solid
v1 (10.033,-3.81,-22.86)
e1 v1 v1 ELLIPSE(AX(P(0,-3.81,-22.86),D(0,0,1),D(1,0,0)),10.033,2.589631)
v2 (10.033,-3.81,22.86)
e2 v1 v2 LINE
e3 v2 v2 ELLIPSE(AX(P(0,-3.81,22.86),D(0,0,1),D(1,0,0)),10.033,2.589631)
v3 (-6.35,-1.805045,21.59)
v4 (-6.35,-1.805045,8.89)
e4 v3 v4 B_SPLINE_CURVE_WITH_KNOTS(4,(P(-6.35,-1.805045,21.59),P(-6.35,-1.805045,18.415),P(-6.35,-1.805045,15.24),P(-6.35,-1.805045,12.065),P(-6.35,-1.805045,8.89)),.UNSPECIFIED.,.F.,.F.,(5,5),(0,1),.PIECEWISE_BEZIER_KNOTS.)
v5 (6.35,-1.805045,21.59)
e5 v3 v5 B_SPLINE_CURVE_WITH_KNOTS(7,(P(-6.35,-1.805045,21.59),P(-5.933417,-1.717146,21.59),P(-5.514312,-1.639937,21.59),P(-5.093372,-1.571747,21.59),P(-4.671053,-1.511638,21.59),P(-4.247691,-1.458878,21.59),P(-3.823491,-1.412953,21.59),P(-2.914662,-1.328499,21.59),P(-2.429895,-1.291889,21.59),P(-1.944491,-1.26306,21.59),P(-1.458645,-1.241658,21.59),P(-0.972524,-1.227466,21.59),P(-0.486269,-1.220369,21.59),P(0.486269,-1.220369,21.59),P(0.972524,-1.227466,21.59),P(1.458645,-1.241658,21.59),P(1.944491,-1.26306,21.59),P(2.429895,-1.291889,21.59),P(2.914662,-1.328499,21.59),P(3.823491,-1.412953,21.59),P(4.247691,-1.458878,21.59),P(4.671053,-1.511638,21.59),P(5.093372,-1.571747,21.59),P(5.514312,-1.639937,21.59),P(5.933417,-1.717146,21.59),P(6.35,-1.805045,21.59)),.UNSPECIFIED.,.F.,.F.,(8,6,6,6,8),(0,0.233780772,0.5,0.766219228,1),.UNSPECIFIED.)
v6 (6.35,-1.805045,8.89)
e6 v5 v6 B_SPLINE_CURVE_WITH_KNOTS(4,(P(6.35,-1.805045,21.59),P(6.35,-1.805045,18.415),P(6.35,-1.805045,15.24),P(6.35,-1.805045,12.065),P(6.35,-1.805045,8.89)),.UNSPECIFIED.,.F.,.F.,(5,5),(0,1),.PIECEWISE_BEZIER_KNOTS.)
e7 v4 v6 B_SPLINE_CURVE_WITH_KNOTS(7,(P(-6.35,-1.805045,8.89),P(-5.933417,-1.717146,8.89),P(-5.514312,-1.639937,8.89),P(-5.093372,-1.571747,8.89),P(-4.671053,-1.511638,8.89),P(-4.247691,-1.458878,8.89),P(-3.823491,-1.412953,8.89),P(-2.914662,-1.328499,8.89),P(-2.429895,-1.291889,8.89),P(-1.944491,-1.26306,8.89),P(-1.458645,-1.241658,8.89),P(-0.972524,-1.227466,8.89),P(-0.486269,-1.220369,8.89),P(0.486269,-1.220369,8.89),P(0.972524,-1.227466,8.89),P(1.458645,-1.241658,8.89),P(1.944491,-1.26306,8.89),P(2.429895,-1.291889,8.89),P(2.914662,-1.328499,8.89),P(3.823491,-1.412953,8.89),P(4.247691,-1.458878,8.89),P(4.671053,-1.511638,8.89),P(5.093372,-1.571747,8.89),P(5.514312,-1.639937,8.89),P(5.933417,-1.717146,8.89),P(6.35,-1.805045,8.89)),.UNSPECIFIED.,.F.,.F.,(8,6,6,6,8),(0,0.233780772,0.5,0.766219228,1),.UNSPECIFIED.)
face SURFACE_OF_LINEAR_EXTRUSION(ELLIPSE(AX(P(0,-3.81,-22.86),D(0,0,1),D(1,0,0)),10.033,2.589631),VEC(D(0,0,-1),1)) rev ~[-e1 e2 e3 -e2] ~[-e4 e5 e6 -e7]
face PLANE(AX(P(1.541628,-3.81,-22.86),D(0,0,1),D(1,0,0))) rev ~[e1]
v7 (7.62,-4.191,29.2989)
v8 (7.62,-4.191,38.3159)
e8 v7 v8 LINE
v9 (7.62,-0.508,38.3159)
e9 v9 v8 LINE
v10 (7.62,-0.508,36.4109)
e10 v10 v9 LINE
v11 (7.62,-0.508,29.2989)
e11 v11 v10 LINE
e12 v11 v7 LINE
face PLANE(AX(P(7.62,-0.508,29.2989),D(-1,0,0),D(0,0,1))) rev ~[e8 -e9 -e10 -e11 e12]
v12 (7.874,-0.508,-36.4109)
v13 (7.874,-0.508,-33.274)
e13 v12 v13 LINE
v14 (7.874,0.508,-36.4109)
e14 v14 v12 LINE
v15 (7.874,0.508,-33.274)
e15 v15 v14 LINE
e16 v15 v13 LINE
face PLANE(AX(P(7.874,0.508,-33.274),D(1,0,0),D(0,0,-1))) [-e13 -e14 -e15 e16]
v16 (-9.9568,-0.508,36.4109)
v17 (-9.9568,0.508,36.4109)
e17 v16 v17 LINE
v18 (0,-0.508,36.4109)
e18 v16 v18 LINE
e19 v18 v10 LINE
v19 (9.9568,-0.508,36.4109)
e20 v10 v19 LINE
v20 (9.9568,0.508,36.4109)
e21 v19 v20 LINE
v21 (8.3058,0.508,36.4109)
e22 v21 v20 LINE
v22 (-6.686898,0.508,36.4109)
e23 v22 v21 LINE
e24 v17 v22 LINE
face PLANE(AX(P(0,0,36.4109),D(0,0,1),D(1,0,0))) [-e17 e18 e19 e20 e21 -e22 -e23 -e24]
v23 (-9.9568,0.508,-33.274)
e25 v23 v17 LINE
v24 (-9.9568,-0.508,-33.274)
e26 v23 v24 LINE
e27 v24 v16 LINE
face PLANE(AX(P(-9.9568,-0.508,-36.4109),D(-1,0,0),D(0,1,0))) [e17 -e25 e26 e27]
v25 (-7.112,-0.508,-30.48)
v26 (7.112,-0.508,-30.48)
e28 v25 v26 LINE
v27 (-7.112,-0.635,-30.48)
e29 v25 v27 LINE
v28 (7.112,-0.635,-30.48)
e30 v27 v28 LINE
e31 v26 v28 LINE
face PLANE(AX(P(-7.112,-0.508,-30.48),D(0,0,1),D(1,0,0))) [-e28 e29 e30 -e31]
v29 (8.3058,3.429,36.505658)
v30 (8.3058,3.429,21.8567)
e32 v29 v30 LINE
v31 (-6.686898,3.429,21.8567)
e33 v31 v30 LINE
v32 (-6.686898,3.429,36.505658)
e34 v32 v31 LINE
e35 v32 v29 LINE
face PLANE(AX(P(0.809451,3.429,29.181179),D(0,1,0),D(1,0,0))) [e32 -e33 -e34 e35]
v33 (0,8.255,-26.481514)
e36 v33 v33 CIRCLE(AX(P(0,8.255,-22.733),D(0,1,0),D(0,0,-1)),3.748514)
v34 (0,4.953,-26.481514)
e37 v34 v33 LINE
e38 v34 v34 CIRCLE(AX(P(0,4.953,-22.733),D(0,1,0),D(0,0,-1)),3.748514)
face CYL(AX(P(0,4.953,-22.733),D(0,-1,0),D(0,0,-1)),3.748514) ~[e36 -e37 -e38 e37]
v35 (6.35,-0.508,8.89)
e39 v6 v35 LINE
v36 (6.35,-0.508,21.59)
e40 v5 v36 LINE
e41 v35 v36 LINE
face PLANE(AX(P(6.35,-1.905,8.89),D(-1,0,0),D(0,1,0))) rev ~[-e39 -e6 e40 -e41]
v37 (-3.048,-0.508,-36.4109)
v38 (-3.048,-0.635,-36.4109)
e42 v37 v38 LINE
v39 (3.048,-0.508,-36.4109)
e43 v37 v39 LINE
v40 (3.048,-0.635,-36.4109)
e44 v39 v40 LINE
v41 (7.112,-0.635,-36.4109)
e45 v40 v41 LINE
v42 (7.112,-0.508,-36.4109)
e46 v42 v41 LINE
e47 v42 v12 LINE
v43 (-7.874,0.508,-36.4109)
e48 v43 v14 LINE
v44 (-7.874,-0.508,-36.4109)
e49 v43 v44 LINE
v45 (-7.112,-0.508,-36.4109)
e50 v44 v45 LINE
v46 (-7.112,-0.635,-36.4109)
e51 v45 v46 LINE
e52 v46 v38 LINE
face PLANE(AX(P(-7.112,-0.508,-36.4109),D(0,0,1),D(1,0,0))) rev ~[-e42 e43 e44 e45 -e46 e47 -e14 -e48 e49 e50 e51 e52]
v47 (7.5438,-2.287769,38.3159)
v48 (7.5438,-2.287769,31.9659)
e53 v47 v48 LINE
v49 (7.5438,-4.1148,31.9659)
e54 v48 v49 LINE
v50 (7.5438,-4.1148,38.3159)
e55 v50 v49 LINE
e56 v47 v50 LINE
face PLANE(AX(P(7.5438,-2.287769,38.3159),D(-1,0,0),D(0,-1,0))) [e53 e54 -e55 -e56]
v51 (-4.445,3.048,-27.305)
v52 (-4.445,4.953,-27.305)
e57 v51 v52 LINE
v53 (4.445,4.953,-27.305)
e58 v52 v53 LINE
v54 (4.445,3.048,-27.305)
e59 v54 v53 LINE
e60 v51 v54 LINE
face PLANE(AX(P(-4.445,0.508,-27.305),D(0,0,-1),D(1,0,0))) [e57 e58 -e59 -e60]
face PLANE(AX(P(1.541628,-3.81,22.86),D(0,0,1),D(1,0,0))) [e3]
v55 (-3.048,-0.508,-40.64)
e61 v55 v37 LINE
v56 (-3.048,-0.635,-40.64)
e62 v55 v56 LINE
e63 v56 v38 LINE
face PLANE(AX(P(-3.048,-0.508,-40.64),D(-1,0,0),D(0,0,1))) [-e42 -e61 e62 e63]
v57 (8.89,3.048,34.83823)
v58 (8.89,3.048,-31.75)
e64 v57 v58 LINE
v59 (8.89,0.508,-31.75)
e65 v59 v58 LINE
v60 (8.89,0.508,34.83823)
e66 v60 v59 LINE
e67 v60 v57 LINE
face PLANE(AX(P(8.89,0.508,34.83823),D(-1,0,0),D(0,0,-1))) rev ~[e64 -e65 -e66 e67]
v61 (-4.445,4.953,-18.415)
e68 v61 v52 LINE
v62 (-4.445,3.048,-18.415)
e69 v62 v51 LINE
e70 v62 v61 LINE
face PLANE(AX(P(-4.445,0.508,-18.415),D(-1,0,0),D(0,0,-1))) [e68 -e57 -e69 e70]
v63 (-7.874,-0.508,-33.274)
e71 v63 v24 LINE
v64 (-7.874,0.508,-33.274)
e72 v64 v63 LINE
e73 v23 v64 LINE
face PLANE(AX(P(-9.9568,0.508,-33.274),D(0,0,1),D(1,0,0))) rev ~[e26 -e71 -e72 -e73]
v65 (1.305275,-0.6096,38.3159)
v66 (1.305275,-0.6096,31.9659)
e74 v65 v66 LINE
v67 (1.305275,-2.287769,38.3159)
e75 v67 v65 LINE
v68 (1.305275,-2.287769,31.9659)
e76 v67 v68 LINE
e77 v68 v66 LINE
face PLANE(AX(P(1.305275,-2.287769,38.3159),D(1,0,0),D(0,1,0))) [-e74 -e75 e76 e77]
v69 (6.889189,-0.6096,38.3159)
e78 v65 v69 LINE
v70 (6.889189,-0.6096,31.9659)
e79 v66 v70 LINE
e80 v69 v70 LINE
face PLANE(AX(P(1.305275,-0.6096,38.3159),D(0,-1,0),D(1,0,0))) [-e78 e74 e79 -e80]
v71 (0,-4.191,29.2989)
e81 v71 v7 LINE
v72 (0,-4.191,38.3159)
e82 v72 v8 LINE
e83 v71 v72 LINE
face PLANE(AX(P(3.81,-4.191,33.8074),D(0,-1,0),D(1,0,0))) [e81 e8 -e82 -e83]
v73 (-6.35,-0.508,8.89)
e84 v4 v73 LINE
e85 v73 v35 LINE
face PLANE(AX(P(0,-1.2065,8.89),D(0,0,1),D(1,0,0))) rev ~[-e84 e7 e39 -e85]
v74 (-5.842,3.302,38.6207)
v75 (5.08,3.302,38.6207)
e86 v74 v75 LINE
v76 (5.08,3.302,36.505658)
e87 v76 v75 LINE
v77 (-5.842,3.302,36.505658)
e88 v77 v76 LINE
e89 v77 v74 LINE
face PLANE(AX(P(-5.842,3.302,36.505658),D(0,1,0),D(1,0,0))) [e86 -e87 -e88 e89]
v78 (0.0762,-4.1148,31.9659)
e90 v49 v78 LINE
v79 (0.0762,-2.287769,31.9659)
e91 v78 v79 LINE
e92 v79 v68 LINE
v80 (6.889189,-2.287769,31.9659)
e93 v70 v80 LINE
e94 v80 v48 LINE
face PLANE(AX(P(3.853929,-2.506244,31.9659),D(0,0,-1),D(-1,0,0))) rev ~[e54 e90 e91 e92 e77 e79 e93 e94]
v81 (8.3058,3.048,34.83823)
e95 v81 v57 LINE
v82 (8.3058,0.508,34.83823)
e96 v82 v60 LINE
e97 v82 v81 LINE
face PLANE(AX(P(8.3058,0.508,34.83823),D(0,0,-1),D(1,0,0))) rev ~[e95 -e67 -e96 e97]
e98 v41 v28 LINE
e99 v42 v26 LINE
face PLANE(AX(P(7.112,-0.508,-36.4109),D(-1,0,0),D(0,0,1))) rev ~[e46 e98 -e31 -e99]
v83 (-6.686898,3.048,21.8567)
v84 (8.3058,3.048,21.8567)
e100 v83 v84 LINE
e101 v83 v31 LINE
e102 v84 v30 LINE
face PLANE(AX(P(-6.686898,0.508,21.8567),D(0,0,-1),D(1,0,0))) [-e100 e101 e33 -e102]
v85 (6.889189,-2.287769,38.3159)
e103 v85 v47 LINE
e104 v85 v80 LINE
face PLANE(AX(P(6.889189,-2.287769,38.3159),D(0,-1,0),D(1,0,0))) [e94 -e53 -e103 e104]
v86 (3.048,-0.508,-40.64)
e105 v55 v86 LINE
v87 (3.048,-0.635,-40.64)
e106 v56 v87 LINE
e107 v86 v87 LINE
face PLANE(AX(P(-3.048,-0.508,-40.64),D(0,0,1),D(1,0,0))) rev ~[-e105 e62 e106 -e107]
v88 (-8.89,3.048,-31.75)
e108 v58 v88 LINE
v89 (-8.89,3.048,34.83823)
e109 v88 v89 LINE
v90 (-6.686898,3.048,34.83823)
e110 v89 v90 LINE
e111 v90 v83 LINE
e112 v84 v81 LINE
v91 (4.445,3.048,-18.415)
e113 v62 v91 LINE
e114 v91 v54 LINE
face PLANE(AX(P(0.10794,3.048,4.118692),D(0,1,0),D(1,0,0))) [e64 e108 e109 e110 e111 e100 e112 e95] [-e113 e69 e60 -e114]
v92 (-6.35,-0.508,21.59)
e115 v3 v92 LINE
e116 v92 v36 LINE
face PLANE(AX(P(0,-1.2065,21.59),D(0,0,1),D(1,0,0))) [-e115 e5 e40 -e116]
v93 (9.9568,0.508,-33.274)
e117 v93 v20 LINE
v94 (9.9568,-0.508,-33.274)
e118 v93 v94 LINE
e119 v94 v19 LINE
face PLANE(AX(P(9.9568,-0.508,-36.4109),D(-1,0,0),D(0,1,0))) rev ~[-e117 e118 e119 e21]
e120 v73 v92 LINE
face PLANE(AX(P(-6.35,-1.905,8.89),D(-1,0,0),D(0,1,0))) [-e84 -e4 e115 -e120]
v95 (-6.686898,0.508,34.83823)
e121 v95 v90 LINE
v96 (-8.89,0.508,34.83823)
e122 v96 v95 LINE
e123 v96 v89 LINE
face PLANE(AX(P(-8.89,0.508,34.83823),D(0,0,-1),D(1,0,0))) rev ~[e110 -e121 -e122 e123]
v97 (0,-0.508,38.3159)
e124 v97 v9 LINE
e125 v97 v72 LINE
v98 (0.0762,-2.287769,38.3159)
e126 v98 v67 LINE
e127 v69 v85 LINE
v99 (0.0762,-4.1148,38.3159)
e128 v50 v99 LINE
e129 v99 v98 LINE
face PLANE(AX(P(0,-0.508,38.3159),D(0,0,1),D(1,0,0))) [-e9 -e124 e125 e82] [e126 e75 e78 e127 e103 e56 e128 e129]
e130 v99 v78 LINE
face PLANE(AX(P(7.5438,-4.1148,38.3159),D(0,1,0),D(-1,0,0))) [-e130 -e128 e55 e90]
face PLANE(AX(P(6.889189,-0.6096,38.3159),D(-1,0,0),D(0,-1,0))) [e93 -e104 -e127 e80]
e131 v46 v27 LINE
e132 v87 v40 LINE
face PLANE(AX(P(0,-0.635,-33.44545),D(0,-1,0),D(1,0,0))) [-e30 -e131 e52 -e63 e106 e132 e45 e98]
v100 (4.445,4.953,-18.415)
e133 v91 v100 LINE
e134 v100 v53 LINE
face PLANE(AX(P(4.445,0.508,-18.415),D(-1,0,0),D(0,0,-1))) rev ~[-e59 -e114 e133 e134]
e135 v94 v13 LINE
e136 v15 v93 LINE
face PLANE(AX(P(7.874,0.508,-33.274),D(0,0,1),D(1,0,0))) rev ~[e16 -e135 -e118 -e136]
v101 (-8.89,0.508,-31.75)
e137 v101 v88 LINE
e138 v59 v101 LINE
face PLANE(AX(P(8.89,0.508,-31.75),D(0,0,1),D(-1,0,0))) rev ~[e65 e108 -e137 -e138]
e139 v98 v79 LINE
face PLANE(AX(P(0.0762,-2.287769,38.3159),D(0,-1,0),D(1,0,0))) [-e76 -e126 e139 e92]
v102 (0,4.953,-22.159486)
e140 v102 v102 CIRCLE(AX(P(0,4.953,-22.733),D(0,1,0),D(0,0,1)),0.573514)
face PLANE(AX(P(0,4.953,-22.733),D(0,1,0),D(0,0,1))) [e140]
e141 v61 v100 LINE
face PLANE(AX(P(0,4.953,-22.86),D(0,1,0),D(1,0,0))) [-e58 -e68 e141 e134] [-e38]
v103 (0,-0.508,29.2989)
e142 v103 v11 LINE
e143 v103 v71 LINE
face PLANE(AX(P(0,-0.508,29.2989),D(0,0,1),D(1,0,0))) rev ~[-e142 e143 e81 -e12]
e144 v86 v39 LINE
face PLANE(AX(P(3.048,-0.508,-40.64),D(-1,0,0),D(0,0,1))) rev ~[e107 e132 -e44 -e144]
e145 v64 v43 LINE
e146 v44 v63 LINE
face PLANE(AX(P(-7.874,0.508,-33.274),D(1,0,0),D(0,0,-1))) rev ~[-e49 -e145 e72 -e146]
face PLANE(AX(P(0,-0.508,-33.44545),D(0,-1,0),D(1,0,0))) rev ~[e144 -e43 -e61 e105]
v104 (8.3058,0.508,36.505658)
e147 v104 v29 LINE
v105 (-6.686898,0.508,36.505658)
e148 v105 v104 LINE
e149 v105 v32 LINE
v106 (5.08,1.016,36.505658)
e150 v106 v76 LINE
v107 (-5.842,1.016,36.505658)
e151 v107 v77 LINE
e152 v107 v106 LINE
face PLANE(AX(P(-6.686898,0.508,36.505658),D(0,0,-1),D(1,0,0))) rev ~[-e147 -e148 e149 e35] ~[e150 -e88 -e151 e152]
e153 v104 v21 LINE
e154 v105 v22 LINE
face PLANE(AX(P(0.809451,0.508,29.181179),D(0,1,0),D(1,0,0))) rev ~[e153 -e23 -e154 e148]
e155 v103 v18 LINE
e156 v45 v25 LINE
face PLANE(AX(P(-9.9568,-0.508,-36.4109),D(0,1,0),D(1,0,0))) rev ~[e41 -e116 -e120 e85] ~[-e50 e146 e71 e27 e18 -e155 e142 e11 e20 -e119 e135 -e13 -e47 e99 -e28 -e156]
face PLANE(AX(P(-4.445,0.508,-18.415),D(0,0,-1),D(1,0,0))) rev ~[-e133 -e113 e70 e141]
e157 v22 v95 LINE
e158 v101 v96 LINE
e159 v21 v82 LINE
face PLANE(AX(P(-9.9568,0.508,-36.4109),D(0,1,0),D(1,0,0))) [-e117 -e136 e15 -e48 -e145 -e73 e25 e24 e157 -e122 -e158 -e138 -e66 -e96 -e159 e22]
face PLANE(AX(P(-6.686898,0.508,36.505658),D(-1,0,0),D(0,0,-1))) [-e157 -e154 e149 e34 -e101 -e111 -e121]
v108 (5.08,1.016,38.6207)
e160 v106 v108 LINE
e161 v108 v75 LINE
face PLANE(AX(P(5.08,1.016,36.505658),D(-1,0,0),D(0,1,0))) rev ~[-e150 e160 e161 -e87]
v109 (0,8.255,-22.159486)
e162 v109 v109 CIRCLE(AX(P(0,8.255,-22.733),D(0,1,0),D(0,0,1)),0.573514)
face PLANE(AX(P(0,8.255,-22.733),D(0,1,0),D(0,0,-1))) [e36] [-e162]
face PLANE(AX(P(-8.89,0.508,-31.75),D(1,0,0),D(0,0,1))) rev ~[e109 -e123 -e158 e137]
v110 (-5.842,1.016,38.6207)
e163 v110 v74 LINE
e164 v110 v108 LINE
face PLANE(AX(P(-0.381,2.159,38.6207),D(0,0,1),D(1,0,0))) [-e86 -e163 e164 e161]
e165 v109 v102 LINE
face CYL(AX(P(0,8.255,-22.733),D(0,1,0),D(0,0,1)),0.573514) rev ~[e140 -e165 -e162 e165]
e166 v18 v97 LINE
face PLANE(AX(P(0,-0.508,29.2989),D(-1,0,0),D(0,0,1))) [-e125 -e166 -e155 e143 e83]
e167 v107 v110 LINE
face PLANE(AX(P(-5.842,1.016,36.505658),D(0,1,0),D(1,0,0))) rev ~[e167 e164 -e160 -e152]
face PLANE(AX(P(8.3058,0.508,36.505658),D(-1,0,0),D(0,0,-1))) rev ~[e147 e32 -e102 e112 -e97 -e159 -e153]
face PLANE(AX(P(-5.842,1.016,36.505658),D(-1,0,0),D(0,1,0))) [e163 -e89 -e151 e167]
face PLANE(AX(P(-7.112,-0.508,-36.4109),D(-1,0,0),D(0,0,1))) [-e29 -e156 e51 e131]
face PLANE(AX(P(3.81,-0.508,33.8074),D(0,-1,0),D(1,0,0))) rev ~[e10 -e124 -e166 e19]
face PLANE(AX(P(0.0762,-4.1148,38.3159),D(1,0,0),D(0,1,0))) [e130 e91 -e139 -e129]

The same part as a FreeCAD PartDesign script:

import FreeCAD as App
import Part
import Sketcher

V = App.Vector
Q = App.Units.Quantity

doc = App.newDocument("Part")
params = doc.addObject("Spreadsheet::Sheet", "Params")
for row, (alias, value) in enumerate([
    ("sketch1_width", "0.5 in"),
    ("sketch1_height", "0.055 in"),
    ("pad1_length", "0.25 in"),
    ("pad1_length2", "0.25 in"),
    ("pad2_length", "0.9 in"),
    ("pad2_length2", "0.9 in"),
    ("sketch3_height", "0.04 in"),
    ("sketch3_width", "0.784 in"),
    ("pad3_length", "1.4335 in"),
    ("pad3_length2", "1.4335 in"),
    ("pad4_length", "0.115 in"),
    ("sketch5_width", "0.43 in"),
    ("sketch5_height", "0.09 in"),
    ("pad5_length", "2.115042 mm"),
    ("sketch6_width", "0.082 in"),
    ("sketch7_width", "0.082 in"),
    ("sketch8_width", "0.3 in"),
    ("sketch8_height", "0.355 in"),
    ("pad6_length", "0.145 in"),
    ("sketch9_width", "0.35 in"),
    ("pad7_length", "0.175 in"),
    ("pad8_length", "0.13 in"),
    ("pocket3_length", "0.13 in"),
    ("sketch12_width", "0.16 in"),
    ("sketch12_width2", "0.24 in"),
    ("pad9_length", "0.005 in"),
    ("sketch13_width", "0.294 in"),
    ("pocket4_length", "0.25 in"),
    ("sketch14_width", "0.7 in"),
    ("sketch14_width2", "0.35 in"),
    ("sketch14_width3", "0.023 in"),
    ("pad10_length", "0.1 in"),
], start=1):
    params.set(f"A{row}", alias)
    params.set(f"B{row}", "=" + value)
    params.setAlias(f"B{row}", alias)

body = doc.addObject("PartDesign::Body", "Body")

# Sketch on XY plane
sketch1 = body.newObject("Sketcher::SketchObject", "Sketch")
sketch1.AttachmentSupport = (doc.getObject("XY_Plane"), [""])
sketch1.MapMode = "FlatFace"
sketch1.AttachmentOffset = App.Placement(V(0, 0, 0.6 * 25.4), App.Rotation())
sketch1.addGeometry([
    Part.LineSegment(V(-6.35, -0.508, 0), V(-6.35, -1.905, 0)),
    Part.LineSegment(V(-6.35, -1.905, 0), V(6.35, -1.905, 0)),
    Part.LineSegment(V(6.35, -1.905, 0), V(6.35, -0.508, 0)),
    Part.LineSegment(V(6.35, -0.508, 0), V(-6.35, -0.508, 0)),
], False)
sketch1.addConstraint([
    Sketcher.Constraint("Coincident", 0, 2, 1, 1),
    Sketcher.Constraint("Coincident", 1, 2, 2, 1),
    Sketcher.Constraint("Coincident", 2, 2, 3, 1),
    Sketcher.Constraint("Coincident", 3, 2, 0, 1),
    Sketcher.Constraint("Vertical", 0),
    Sketcher.Constraint("Horizontal", 1),
    Sketcher.Constraint("Vertical", 2),
    Sketcher.Constraint("Horizontal", 3),
    Sketcher.Constraint("DistanceX", 1, 1, 1, 2, Q("0.5 in")),
    Sketcher.Constraint("DistanceY", 0, 2, 0, 1, Q("0.055 in")),
    Sketcher.Constraint("DistanceX", 0, 2, -1, 1, Q("0.25 in")),
    Sketcher.Constraint("DistanceY", 2, 2, -1, 1, Q("0.02 in")),
])
sketch1.setExpression("Constraints[8]", "Params.sketch1_width")
sketch1.setExpression("Constraints[9]", "Params.sketch1_height")
pad1 = body.newObject("PartDesign::Pad", "Pad")
pad1.Profile = sketch1
pad1.Type = "TwoLengths"
pad1.setExpression("Length", "Params.pad1_length")
pad1.setExpression("Length2", "Params.pad1_length2")

# Sketch on XY plane
sketch2 = body.newObject("Sketcher::SketchObject", "Sketch001")
sketch2.AttachmentSupport = (doc.getObject("XY_Plane"), [""])
sketch2.MapMode = "FlatFace"
sketch2.addGeometry(Part.Ellipse(V(10.033, -3.81, 0), V(0, -1.220369, 0), V(0, -3.81, 0)), False)
sketch2.addConstraint(Sketcher.Constraint("Block", 0))
pad2 = body.newObject("PartDesign::Pad", "Pad001")
pad2.Profile = sketch2
pad2.Type = "TwoLengths"
pad2.setExpression("Length", "Params.pad2_length")
pad2.setExpression("Length2", "Params.pad2_length2")

# Sketch on XY plane
sketch3 = body.newObject("Sketcher::SketchObject", "Sketch002")
sketch3.AttachmentSupport = (doc.getObject("XY_Plane"), [""])
sketch3.MapMode = "FlatFace"
sketch3.addGeometry([
    Part.LineSegment(V(-9.9568, 0.508, 0), V(-9.9568, -0.508, 0)),
    Part.LineSegment(V(-9.9568, -0.508, 0), V(9.9568, -0.508, 0)),
    Part.LineSegment(V(9.9568, -0.508, 0), V(9.9568, 0.508, 0)),
    Part.LineSegment(V(9.9568, 0.508, 0), V(-9.9568, 0.508, 0)),
], False)
sketch3.addConstraint([
    Sketcher.Constraint("Coincident", 0, 2, 1, 1),
    Sketcher.Constraint("Coincident", 1, 2, 2, 1),
    Sketcher.Constraint("Coincident", 2, 2, 3, 1),
    Sketcher.Constraint("Coincident", 3, 2, 0, 1),
    Sketcher.Constraint("Vertical", 0),
    Sketcher.Constraint("Horizontal", 1),
    Sketcher.Constraint("Vertical", 2),
    Sketcher.Constraint("Horizontal", 3),
    Sketcher.Constraint("Symmetric", 0, 2, 2, 2, -1, 1),
    Sketcher.Constraint("DistanceY", 0, 2, 0, 1, Q("0.04 in")),
    Sketcher.Constraint("DistanceX", 1, 1, 1, 2, Q("0.784 in")),
])
sketch3.setExpression("Constraints[9]", "Params.sketch3_height")
sketch3.setExpression("Constraints[10]", "Params.sketch3_width")
pad3 = body.newObject("PartDesign::Pad", "Pad002")
pad3.Profile = sketch3
pad3.Type = "TwoLengths"
pad3.setExpression("Length", "Params.pad3_length")
pad3.setExpression("Length2", "Params.pad3_length2")

# Sketch on XZ plane
sketch4 = body.newObject("Sketcher::SketchObject", "Sketch003")
sketch4.AttachmentSupport = (doc.getObject("XZ_Plane"), [""])
sketch4.MapMode = "FlatFace"
sketch4.AttachmentOffset = App.Placement(V(0, 0, -0.02 * 25.4), App.Rotation())
sketch4.addGeometry([
    Part.LineSegment(V(-6.686898, 21.8567, 0), V(-6.686898, 36.505658, 0)),
    Part.LineSegment(V(-6.686898, 36.505658, 0), V(8.3058, 36.505658, 0)),
    Part.LineSegment(V(8.3058, 36.505658, 0), V(8.3058, 21.8567, 0)),
    Part.LineSegment(V(8.3058, 21.8567, 0), V(-6.686898, 21.8567, 0)),
], False)
sketch4.addConstraint([
    Sketcher.Constraint("Coincident", 0, 2, 1, 1),
    Sketcher.Constraint("Coincident", 1, 2, 2, 1),
    Sketcher.Constraint("Coincident", 2, 2, 3, 1),
    Sketcher.Constraint("Coincident", 3, 2, 0, 1),
    Sketcher.Constraint("Vertical", 0),
    Sketcher.Constraint("Horizontal", 1),
    Sketcher.Constraint("Vertical", 2),
    Sketcher.Constraint("Horizontal", 3),
    Sketcher.Constraint("DistanceX", -1, 1, 1, 2, Q("0.327 in")),
    Sketcher.Constraint("DistanceY", -1, 1, 2, 2, Q("0.8605 in")),
    Sketcher.Constraint("DistanceX", 1, 1, 1, 2, Q("14.992698 mm")),
    Sketcher.Constraint("DistanceY", 0, 1, 0, 2, Q("14.648958 mm")),
])
pad4 = body.newObject("PartDesign::Pad", "Pad003")
pad4.Profile = sketch4
pad4.setExpression("Length", "Params.pad4_length")
pad4.Reversed = True

# Sketch on XY plane
sketch5 = body.newObject("Sketcher::SketchObject", "Sketch004")
sketch5.AttachmentSupport = (doc.getObject("XY_Plane"), [""])
sketch5.MapMode = "FlatFace"
sketch5.AttachmentOffset = App.Placement(V(0, 0, 36.505658), App.Rotation())
sketch5.addGeometry([
    Part.LineSegment(V(-5.842, 3.302, 0), V(-5.842, 1.016, 0)),
    Part.LineSegment(V(-5.842, 1.016, 0), V(5.08, 1.016, 0)),
    Part.LineSegment(V(5.08, 1.016, 0), V(5.08, 3.302, 0)),
    Part.LineSegment(V(5.08, 3.302, 0), V(-5.842, 3.302, 0)),
], False)
sketch5.addConstraint([
    Sketcher.Constraint("Coincident", 0, 2, 1, 1),
    Sketcher.Constraint("Coincident", 1, 2, 2, 1),
    Sketcher.Constraint("Coincident", 2, 2, 3, 1),
    Sketcher.Constraint("Coincident", 3, 2, 0, 1),
    Sketcher.Constraint("Vertical", 0),
    Sketcher.Constraint("Horizontal", 1),
    Sketcher.Constraint("Vertical", 2),
    Sketcher.Constraint("Horizontal", 3),
    Sketcher.Constraint("DistanceX", 1, 1, 1, 2, Q("0.43 in")),
    Sketcher.Constraint("DistanceY", 0, 2, 0, 1, Q("0.09 in")),
    Sketcher.Constraint("DistanceX", -1, 1, 1, 2, Q("0.2 in")),
    Sketcher.Constraint("DistanceY", -1, 1, 0, 2, Q("0.04 in")),
])
sketch5.setExpression("Constraints[8]", "Params.sketch5_width")
sketch5.setExpression("Constraints[9]", "Params.sketch5_height")
pad5 = body.newObject("PartDesign::Pad", "Pad004")
pad5.Profile = sketch5
pad5.setExpression("Length", "Params.pad5_length")

# Sketch on XZ plane
sketch6 = body.newObject("Sketcher::SketchObject", "Sketch005")
sketch6.AttachmentSupport = (doc.getObject("XZ_Plane"), [""])
sketch6.MapMode = "FlatFace"
sketch6.AttachmentOffset = App.Placement(V(0, 0, -0.02 * 25.4), App.Rotation())
sketch6.addGeometry([
    Part.LineSegment(V(-9.9568, -36.4109, 0), V(-9.9568, -33.274, 0)),
    Part.LineSegment(V(-9.9568, -33.274, 0), V(-7.874, -33.274, 0)),
    Part.LineSegment(V(-7.874, -33.274, 0), V(-7.874, -36.4109, 0)),
    Part.LineSegment(V(-7.874, -36.4109, 0), V(-9.9568, -36.4109, 0)),
], False)
sketch6.addConstraint([
    Sketcher.Constraint("Coincident", 0, 2, 1, 1),
    Sketcher.Constraint("Coincident", 1, 2, 2, 1),
    Sketcher.Constraint("Coincident", 2, 2, 3, 1),
    Sketcher.Constraint("Coincident", 3, 2, 0, 1),
    Sketcher.Constraint("Vertical", 0),
    Sketcher.Constraint("Horizontal", 1),
    Sketcher.Constraint("Vertical", 2),
    Sketcher.Constraint("Horizontal", 3),
    Sketcher.Constraint("DistanceX", 1, 1, 1, 2, Q("0.082 in")),
    Sketcher.Constraint("DistanceY", 0, 2, -1, 1, Q("1.31 in")),
    Sketcher.Constraint("DistanceX", 1, 2, -1, 1, Q("0.31 in")),
    Sketcher.Constraint("DistanceY", 0, 1, 0, 2, Q("0.1235 in")),
])
sketch6.setExpression("Constraints[8]", "Params.sketch6_width")
pocket1 = body.newObject("PartDesign::Pocket", "Pocket")
pocket1.Profile = sketch6
pocket1.Type = "UpToFirst"
pocket1.Reversed = True

# Sketch on XZ plane
sketch7 = body.newObject("Sketcher::SketchObject", "Sketch006")
sketch7.AttachmentSupport = (doc.getObject("XZ_Plane"), [""])
sketch7.MapMode = "FlatFace"
sketch7.AttachmentOffset = App.Placement(V(0, 0, -0.02 * 25.4), App.Rotation())
sketch7.addGeometry([
    Part.LineSegment(V(7.874, -36.4109, 0), V(7.874, -33.274, 0)),
    Part.LineSegment(V(7.874, -33.274, 0), V(9.9568, -33.274, 0)),
    Part.LineSegment(V(9.9568, -33.274, 0), V(9.9568, -36.4109, 0)),
    Part.LineSegment(V(9.9568, -36.4109, 0), V(7.874, -36.4109, 0)),
], False)
sketch7.addConstraint([
    Sketcher.Constraint("Coincident", 0, 2, 1, 1),
    Sketcher.Constraint("Coincident", 1, 2, 2, 1),
    Sketcher.Constraint("Coincident", 2, 2, 3, 1),
    Sketcher.Constraint("Coincident", 3, 2, 0, 1),
    Sketcher.Constraint("Vertical", 0),
    Sketcher.Constraint("Horizontal", 1),
    Sketcher.Constraint("Vertical", 2),
    Sketcher.Constraint("Horizontal", 3),
    Sketcher.Constraint("DistanceX", 1, 1, 1, 2, Q("0.082 in")),
    Sketcher.Constraint("DistanceX", -1, 1, 0, 2, Q("0.31 in")),
    Sketcher.Constraint("DistanceY", 0, 2, -1, 1, Q("1.31 in")),
    Sketcher.Constraint("DistanceY", 0, 1, 0, 2, Q("0.1235 in")),
])
sketch7.setExpression("Constraints[8]", "Params.sketch7_width")
pocket2 = body.newObject("PartDesign::Pocket", "Pocket001")
pocket2.Profile = sketch7
pocket2.Type = "UpToFirst"
pocket2.Reversed = True

# Sketch on XZ plane
sketch8 = body.newObject("Sketcher::SketchObject", "Sketch007")
sketch8.AttachmentSupport = (doc.getObject("XZ_Plane"), [""])
sketch8.MapMode = "FlatFace"
sketch8.AttachmentOffset = App.Placement(V(0, 0, 0.02 * 25.4), App.Rotation())
sketch8.addGeometry([
    Part.LineSegment(V(0, 38.3159, 0), V(0, 29.2989, 0)),
    Part.LineSegment(V(0, 29.2989, 0), V(7.62, 29.2989, 0)),
    Part.LineSegment(V(7.62, 29.2989, 0), V(7.62, 38.3159, 0)),
    Part.LineSegment(V(7.62, 38.3159, 0), V(0, 38.3159, 0)),
], False)
sketch8.addConstraint([
    Sketcher.Constraint("Coincident", 0, 2, 1, 1),
    Sketcher.Constraint("Coincident", 1, 2, 2, 1),
    Sketcher.Constraint("Coincident", 2, 2, 3, 1),
    Sketcher.Constraint("Coincident", 3, 2, 0, 1),
    Sketcher.Constraint("Vertical", 0),
    Sketcher.Constraint("Horizontal", 1),
    Sketcher.Constraint("Vertical", 2),
    Sketcher.Constraint("Horizontal", 3),
    Sketcher.Constraint("PointOnObject", 0, 2, -2),
    Sketcher.Constraint("DistanceX", 1, 1, 1, 2, Q("0.3 in")),
    Sketcher.Constraint("DistanceY", 0, 2, 0, 1, Q("0.355 in")),
    Sketcher.Constraint("DistanceY", -1, 1, 0, 2, Q("1.1535 in")),
])
sketch8.setExpression("Constraints[9]", "Params.sketch8_width")
sketch8.setExpression("Constraints[10]", "Params.sketch8_height")
pad6 = body.newObject("PartDesign::Pad", "Pad005")
pad6.Profile = sketch8
pad6.setExpression("Length", "Params.pad6_length")

# Sketch on XZ plane
sketch9 = body.newObject("Sketcher::SketchObject", "Sketch008")
sketch9.AttachmentSupport = (doc.getObject("XZ_Plane"), [""])
sketch9.MapMode = "FlatFace"
sketch9.AttachmentOffset = App.Placement(V(0, 0, -0.02 * 25.4), App.Rotation())
sketch9.addGeometry([
    Part.LineSegment(V(-4.445, -27.305, 0), V(-4.445, -18.415, 0)),
    Part.LineSegment(V(-4.445, -18.415, 0), V(4.445, -18.415, 0)),
    Part.LineSegment(V(4.445, -18.415, 0), V(4.445, -27.305, 0)),
    Part.LineSegment(V(4.445, -27.305, 0), V(-4.445, -27.305, 0)),
], False)
sketch9.addConstraint([
    Sketcher.Constraint("Coincident", 0, 2, 1, 1),
    Sketcher.Constraint("Coincident", 1, 2, 2, 1),
    Sketcher.Constraint("Coincident", 2, 2, 3, 1),
    Sketcher.Constraint("Coincident", 3, 2, 0, 1),
    Sketcher.Constraint("Vertical", 0),
    Sketcher.Constraint("Horizontal", 1),
    Sketcher.Constraint("Vertical", 2),
    Sketcher.Constraint("Horizontal", 3),
    Sketcher.Constraint("Equal", 3, 0),
    Sketcher.Constraint("DistanceX", 1, 1, 1, 2, Q("0.35 in")),
    Sketcher.Constraint("DistanceX", 0, 2, -1, 1, Q("0.175 in")),
    Sketcher.Constraint("DistanceY", 0, 2, -1, 1, Q("0.725 in")),
])
sketch9.setExpression("Constraints[9]", "Params.sketch9_width")
pad7 = body.newObject("PartDesign::Pad", "Pad006")
pad7.Profile = sketch9
pad7.setExpression("Length", "Params.pad7_length")
pad7.Reversed = True

# Sketch on XZ plane
sketch10 = body.newObject("Sketcher::SketchObject", "Sketch009")
sketch10.AttachmentSupport = (doc.getObject("XZ_Plane"), [""])
sketch10.MapMode = "FlatFace"
sketch10.AttachmentOffset = App.Placement(V(0, 0, -0.195 * 25.4), App.Rotation())
sketch10.addGeometry(Part.Circle(V(0, -22.733, 0), V(0, 0, 1), 3.748514), False)
sketch10.addConstraint([
    Sketcher.Constraint("PointOnObject", 0, 3, -2),
    Sketcher.Constraint("DistanceY", 0, 3, -1, 1, Q("0.895 in")),
    Sketcher.Constraint("Diameter", 0, Q("7.497028 mm")),
])
pad8 = body.newObject("PartDesign::Pad", "Pad007")
pad8.Profile = sketch10
pad8.setExpression("Length", "Params.pad8_length")
pad8.Reversed = True

# Sketch on XZ plane
sketch11 = body.newObject("Sketcher::SketchObject", "Sketch010")
sketch11.AttachmentSupport = (doc.getObject("XZ_Plane"), [""])
sketch11.MapMode = "FlatFace"
sketch11.AttachmentOffset = App.Placement(V(0, 0, -0.325 * 25.4), App.Rotation())
sketch11.addGeometry(Part.Circle(V(0, -22.733, 0), V(0, 0, 1), 0.573514), False)
sketch11.addConstraint([
    Sketcher.Constraint("PointOnObject", 0, 3, -2),
    Sketcher.Constraint("DistanceY", 0, 3, -1, 1, Q("0.895 in")),
    Sketcher.Constraint("Diameter", 0, Q("1.147028 mm")),
])
pocket3 = body.newObject("PartDesign::Pocket", "Pocket002")
pocket3.Profile = sketch11
pocket3.setExpression("Length", "Params.pocket3_length")
pocket3.Reversed = True

# Sketch on XZ plane
sketch12 = body.newObject("Sketcher::SketchObject", "Sketch011")
sketch12.AttachmentSupport = (doc.getObject("XZ_Plane"), [""])
sketch12.MapMode = "FlatFace"
sketch12.AttachmentOffset = App.Placement(V(0, 0, 0.02 * 25.4), App.Rotation())
sketch12.addGeometry([
    Part.LineSegment(V(-7.112, -30.48, 0), V(-7.112, -36.4109, 0)),  # 0
    Part.LineSegment(V(-7.112, -36.4109, 0), V(-3.048, -36.4109, 0)),  # 1
    Part.LineSegment(V(-3.048, -36.4109, 0), V(-3.048, -40.64, 0)),  # 2
    Part.LineSegment(V(-3.048, -40.64, 0), V(3.048, -40.64, 0)),  # 3
    Part.LineSegment(V(3.048, -40.64, 0), V(3.048, -36.4109, 0)),  # 4
    Part.LineSegment(V(3.048, -36.4109, 0), V(7.112, -36.4109, 0)),  # 5
    Part.LineSegment(V(7.112, -36.4109, 0), V(7.112, -30.48, 0)),  # 6
    Part.LineSegment(V(7.112, -30.48, 0), V(-7.112, -30.48, 0)),  # 7
], False)
sketch12.addConstraint([
    Sketcher.Constraint("Coincident", 0, 2, 1, 1),
    Sketcher.Constraint("Coincident", 1, 2, 2, 1),
    Sketcher.Constraint("Coincident", 2, 2, 3, 1),
    Sketcher.Constraint("Coincident", 3, 2, 4, 1),
    Sketcher.Constraint("Coincident", 4, 2, 5, 1),
    Sketcher.Constraint("Coincident", 5, 2, 6, 1),
    Sketcher.Constraint("Coincident", 6, 2, 7, 1),
    Sketcher.Constraint("Coincident", 7, 2, 0, 1),
    Sketcher.Constraint("Vertical", 0),
    Sketcher.Constraint("Horizontal", 1),
    Sketcher.Constraint("Vertical", 2),
    Sketcher.Constraint("Horizontal", 3),
    Sketcher.Constraint("Vertical", 4),
    Sketcher.Constraint("Horizontal", 5),
    Sketcher.Constraint("Vertical", 6),
    Sketcher.Constraint("Horizontal", 7),
    Sketcher.Constraint("Symmetric", 1, 2, 4, 2, -2),
    Sketcher.Constraint("Equal", 1, 5),
    Sketcher.Constraint("DistanceX", 1, 1, 1, 2, Q("0.16 in")),
    Sketcher.Constraint("DistanceX", 3, 1, 3, 2, Q("0.24 in")),
    Sketcher.Constraint("DistanceY", 2, 2, -1, 1, Q("1.6 in")),
    Sketcher.Constraint("DistanceY", 6, 2, -1, 1, Q("1.2 in")),
    Sketcher.Constraint("DistanceY", 0, 2, 0, 1, Q("0.2335 in")),
])
sketch12.setExpression("Constraints[18]", "Params.sketch12_width")
sketch12.setExpression("Constraints[19]", "Params.sketch12_width2")
pad9 = body.newObject("PartDesign::Pad", "Pad008")
pad9.Profile = sketch12
pad9.setExpression("Length", "Params.pad9_length")

# Sketch on XY plane
sketch13 = body.newObject("Sketcher::SketchObject", "Sketch012")
sketch13.AttachmentSupport = (doc.getObject("XY_Plane"), [""])
sketch13.MapMode = "FlatFace"
sketch13.AttachmentOffset = App.Placement(V(0, 0, 1.5085 * 25.4), App.Rotation())
sketch13.addGeometry([
    Part.LineSegment(V(6.889189, -0.6096, 0), V(1.305275, -0.6096, 0)),  # 0
    Part.LineSegment(V(1.305275, -0.6096, 0), V(1.305275, -2.287769, 0)),  # 1
    Part.LineSegment(V(1.305275, -2.287769, 0), V(0.0762, -2.287769, 0)),  # 2
    Part.LineSegment(V(0.0762, -2.287769, 0), V(0.0762, -4.1148, 0)),  # 3
    Part.LineSegment(V(0.0762, -4.1148, 0), V(7.5438, -4.1148, 0)),  # 4
    Part.LineSegment(V(7.5438, -4.1148, 0), V(7.5438, -2.287769, 0)),  # 5
    Part.LineSegment(V(7.5438, -2.287769, 0), V(6.889189, -2.287769, 0)),  # 6
    Part.LineSegment(V(6.889189, -2.287769, 0), V(6.889189, -0.6096, 0)),  # 7
], False)
sketch13.addConstraint([
    Sketcher.Constraint("Coincident", 0, 2, 1, 1),
    Sketcher.Constraint("Coincident", 1, 2, 2, 1),
    Sketcher.Constraint("Coincident", 2, 2, 3, 1),
    Sketcher.Constraint("Coincident", 3, 2, 4, 1),
    Sketcher.Constraint("Coincident", 4, 2, 5, 1),
    Sketcher.Constraint("Coincident", 5, 2, 6, 1),
    Sketcher.Constraint("Coincident", 6, 2, 7, 1),
    Sketcher.Constraint("Coincident", 7, 2, 0, 1),
    Sketcher.Constraint("Horizontal", 0),
    Sketcher.Constraint("Vertical", 1),
    Sketcher.Constraint("Horizontal", 2),
    Sketcher.Constraint("Vertical", 3),
    Sketcher.Constraint("Horizontal", 4),
    Sketcher.Constraint("Vertical", 5),
    Sketcher.Constraint("Horizontal", 6),
    Sketcher.Constraint("Vertical", 7),
    Sketcher.Constraint("Horizontal", 2, 2, 5, 2),
    Sketcher.Constraint("DistanceX", 4, 1, 4, 2, Q("0.294 in")),
    Sketcher.Constraint("DistanceY", 0, 2, -1, 1, Q("0.024 in")),
    Sketcher.Constraint("DistanceX", -1, 1, 2, 2, Q("0.003 in")),
    Sketcher.Constraint("DistanceY", 3, 2, -1, 1, Q("0.162 in")),
    Sketcher.Constraint("DistanceX", 6, 2, 6, 1, Q("0.654611 mm")),
    Sketcher.Constraint("DistanceY", 1, 2, 1, 1, Q("1.678169 mm")),
    Sketcher.Constraint("DistanceX", 0, 2, 0, 1, Q("5.583915 mm")),
])
sketch13.setExpression("Constraints[17]", "Params.sketch13_width")
pocket4 = body.newObject("PartDesign::Pocket", "Pocket003")
pocket4.Profile = sketch13
pocket4.setExpression("Length", "Params.pocket4_length")

# Sketch on XZ plane
sketch14 = body.newObject("Sketcher::SketchObject", "Sketch013")
sketch14.AttachmentSupport = (doc.getObject("XZ_Plane"), [""])
sketch14.MapMode = "FlatFace"
sketch14.AttachmentOffset = App.Placement(V(0, 0, -0.02 * 25.4), App.Rotation())
sketch14.addGeometry([
    Part.LineSegment(V(8.3058, 34.83823, 0), V(8.89, 34.83823, 0)),  # 0
    Part.LineSegment(V(8.89, 34.83823, 0), V(8.89, -31.75, 0)),  # 1
    Part.LineSegment(V(8.89, -31.75, 0), V(-8.89, -31.75, 0)),  # 2
    Part.LineSegment(V(-8.89, -31.75, 0), V(-8.89, 34.83823, 0)),  # 3
    Part.LineSegment(V(-8.89, 34.83823, 0), V(-6.686898, 34.83823, 0)),  # 4
    Part.LineSegment(V(-6.686898, 34.83823, 0), V(-6.686898, 21.8567, 0)),  # 5
    Part.LineSegment(V(-6.686898, 21.8567, 0), V(8.3058, 21.8567, 0)),  # 6
    Part.LineSegment(V(8.3058, 21.8567, 0), V(8.3058, 34.83823, 0)),  # 7
    Part.LineSegment(V(4.445, -18.415, 0), V(-4.445, -18.415, 0)),  # 8
    Part.LineSegment(V(-4.445, -18.415, 0), V(-4.445, -27.305, 0)),  # 9
    Part.LineSegment(V(-4.445, -27.305, 0), V(4.445, -27.305, 0)),  # 10
    Part.LineSegment(V(4.445, -27.305, 0), V(4.445, -18.415, 0)),  # 11
], False)
sketch14.addConstraint([
    Sketcher.Constraint("Coincident", 0, 2, 1, 1),
    Sketcher.Constraint("Coincident", 1, 2, 2, 1),
    Sketcher.Constraint("Coincident", 2, 2, 3, 1),
    Sketcher.Constraint("Coincident", 3, 2, 4, 1),
    Sketcher.Constraint("Coincident", 4, 2, 5, 1),
    Sketcher.Constraint("Coincident", 5, 2, 6, 1),
    Sketcher.Constraint("Coincident", 6, 2, 7, 1),
    Sketcher.Constraint("Coincident", 7, 2, 0, 1),
    Sketcher.Constraint("Coincident", 8, 2, 9, 1),
    Sketcher.Constraint("Coincident", 9, 2, 10, 1),
    Sketcher.Constraint("Coincident", 10, 2, 11, 1),
    Sketcher.Constraint("Coincident", 11, 2, 8, 1),
    Sketcher.Constraint("Horizontal", 0),
    Sketcher.Constraint("Vertical", 1),
    Sketcher.Constraint("Horizontal", 2),
    Sketcher.Constraint("Vertical", 3),
    Sketcher.Constraint("Horizontal", 4),
    Sketcher.Constraint("Vertical", 5),
    Sketcher.Constraint("Horizontal", 6),
    Sketcher.Constraint("Vertical", 7),
    Sketcher.Constraint("Horizontal", 8),
    Sketcher.Constraint("Vertical", 9),
    Sketcher.Constraint("Horizontal", 10),
    Sketcher.Constraint("Vertical", 11),
    Sketcher.Constraint("Symmetric", 0, 2, 3, 2, -2),
    Sketcher.Constraint("Equal", 10, 9),
    Sketcher.Constraint("DistanceX", 2, 2, 2, 1, Q("0.7 in")),
    Sketcher.Constraint("DistanceX", 8, 2, 8, 1, Q("0.35 in")),
    Sketcher.Constraint("DistanceX", 0, 1, 0, 2, Q("0.023 in")),
    Sketcher.Constraint("DistanceY", 1, 2, -1, 1, Q("1.25 in")),
    Sketcher.Constraint("DistanceX", 8, 2, -1, 1, Q("0.175 in")),
    Sketcher.Constraint("DistanceY", 8, 2, -1, 1, Q("0.725 in")),
    Sketcher.Constraint("DistanceY", -1, 1, 5, 2, Q("0.8605 in")),
    Sketcher.Constraint("DistanceY", 1, 2, 1, 1, Q("66.58823 mm")),
    Sketcher.Constraint("DistanceX", 4, 1, 4, 2, Q("2.203102 mm")),
])
sketch14.setExpression("Constraints[26]", "Params.sketch14_width")
sketch14.setExpression("Constraints[27]", "Params.sketch14_width2")
sketch14.setExpression("Constraints[28]", "Params.sketch14_width3")
pad10 = body.newObject("PartDesign::Pad", "Pad009")
pad10.Profile = sketch14
pad10.setExpression("Length", "Params.pad10_length")
pad10.Reversed = True

doc.recompute()
